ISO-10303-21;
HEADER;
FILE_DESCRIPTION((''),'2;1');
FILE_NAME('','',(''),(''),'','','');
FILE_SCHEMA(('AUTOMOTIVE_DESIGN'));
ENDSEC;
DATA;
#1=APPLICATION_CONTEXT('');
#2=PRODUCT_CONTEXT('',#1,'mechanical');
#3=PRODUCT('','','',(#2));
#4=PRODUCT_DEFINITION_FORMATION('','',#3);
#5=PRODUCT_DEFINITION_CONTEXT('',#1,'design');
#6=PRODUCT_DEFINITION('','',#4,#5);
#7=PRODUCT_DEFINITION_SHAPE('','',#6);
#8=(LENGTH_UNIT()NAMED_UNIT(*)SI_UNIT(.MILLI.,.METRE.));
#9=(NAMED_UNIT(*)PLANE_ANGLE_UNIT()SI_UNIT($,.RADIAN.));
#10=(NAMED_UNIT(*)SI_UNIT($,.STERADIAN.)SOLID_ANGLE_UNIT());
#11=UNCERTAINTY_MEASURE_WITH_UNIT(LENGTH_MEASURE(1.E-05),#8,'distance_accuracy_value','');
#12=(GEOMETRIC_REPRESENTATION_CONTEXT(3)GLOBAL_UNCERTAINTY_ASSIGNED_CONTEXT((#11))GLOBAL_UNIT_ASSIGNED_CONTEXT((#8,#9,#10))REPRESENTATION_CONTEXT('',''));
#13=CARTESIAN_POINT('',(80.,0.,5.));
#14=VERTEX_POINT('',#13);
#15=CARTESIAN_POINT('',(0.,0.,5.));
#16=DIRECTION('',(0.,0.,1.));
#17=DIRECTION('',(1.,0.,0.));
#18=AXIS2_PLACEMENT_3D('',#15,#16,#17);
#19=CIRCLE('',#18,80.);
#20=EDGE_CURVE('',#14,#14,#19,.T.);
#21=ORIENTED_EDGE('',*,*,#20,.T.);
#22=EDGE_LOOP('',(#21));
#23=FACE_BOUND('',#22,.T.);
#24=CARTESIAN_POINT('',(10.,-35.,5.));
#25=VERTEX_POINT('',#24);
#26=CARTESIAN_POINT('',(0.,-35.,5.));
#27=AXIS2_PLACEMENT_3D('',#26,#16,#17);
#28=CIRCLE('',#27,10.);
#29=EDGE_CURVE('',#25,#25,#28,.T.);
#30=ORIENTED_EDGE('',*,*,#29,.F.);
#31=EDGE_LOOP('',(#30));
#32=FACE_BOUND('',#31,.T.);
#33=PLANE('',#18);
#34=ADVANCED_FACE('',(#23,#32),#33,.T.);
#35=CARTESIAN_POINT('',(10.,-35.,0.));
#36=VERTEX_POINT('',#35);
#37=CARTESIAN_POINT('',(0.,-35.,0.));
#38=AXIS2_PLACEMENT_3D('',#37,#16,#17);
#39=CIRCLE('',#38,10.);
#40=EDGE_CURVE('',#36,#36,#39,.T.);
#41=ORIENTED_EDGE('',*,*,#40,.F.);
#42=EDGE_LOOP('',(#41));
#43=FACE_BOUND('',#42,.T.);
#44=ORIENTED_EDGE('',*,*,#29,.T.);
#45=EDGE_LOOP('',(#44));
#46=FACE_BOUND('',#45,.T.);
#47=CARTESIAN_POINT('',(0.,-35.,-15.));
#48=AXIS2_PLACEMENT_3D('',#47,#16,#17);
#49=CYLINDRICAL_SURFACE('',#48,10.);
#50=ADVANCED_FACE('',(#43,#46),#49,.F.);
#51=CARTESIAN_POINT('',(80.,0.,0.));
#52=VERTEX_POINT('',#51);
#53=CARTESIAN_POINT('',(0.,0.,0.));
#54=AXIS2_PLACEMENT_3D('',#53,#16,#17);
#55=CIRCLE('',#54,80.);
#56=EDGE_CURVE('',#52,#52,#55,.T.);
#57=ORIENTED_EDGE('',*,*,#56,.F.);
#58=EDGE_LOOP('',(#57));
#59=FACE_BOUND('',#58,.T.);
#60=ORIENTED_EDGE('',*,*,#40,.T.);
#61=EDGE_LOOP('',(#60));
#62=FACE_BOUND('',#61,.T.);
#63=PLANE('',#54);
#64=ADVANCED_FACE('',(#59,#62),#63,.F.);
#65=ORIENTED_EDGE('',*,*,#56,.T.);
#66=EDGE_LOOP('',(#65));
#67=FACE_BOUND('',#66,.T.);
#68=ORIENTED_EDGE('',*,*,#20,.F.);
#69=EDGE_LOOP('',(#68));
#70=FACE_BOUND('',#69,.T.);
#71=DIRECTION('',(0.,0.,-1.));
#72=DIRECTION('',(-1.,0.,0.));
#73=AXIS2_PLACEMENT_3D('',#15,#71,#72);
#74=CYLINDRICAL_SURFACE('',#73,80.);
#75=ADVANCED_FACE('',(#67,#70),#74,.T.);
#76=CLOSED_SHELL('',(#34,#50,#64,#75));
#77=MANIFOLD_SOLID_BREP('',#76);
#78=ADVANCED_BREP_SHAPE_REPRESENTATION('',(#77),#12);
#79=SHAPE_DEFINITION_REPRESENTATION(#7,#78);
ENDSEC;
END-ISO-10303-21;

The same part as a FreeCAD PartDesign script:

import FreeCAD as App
import Part
import Sketcher
from FreeCAD import Vector

doc = App.newDocument("Part")
body = doc.addObject("PartDesign::Body", "Body")

# Sketch on XY plane
sketch1 = doc.addObject("Sketcher::SketchObject", "Sketch")
body.addObject(sketch1)
sketch1.AttachmentSupport = (doc.XY_Plane, [""])
sketch1.MapMode = "FlatFace"
sketch1.addGeometry(Part.Circle(Vector(0, 0, 0), Vector(0, 0, 1), 80), False)
sketch1.addConstraint([
    Sketcher.Constraint("Coincident", 0, 3, -1, 1),
    Sketcher.Constraint("Diameter", 0, 160.0),
])
pad1 = doc.addObject("PartDesign::Pad", "Pad")
body.addObject(pad1)
pad1.Profile = sketch1
pad1.Length = 5

# Sketch on XY plane
sketch2 = doc.addObject("Sketcher::SketchObject", "Sketch001")
body.addObject(sketch2)
sketch2.AttachmentSupport = (doc.XY_Plane, [""])
sketch2.MapMode = "FlatFace"
sketch2.AttachmentOffset = App.Placement(Vector(0, 0, 5), App.Rotation())
sketch2.addGeometry(Part.Circle(Vector(0, -35, 0), Vector(0, 0, 1), 10), False)
sketch2.addConstraint([
    Sketcher.Constraint("PointOnObject", 0, 3, -2),
    Sketcher.Constraint("Diameter", 0, 20.0),
    Sketcher.Constraint("DistanceY", 0, 3, -1, 1, 35.0),
])
pocket1 = doc.addObject("PartDesign::Pocket", "Pocket")
body.addObject(pocket1)
pocket1.Profile = sketch2
pocket1.Length = 20

doc.recompute()
